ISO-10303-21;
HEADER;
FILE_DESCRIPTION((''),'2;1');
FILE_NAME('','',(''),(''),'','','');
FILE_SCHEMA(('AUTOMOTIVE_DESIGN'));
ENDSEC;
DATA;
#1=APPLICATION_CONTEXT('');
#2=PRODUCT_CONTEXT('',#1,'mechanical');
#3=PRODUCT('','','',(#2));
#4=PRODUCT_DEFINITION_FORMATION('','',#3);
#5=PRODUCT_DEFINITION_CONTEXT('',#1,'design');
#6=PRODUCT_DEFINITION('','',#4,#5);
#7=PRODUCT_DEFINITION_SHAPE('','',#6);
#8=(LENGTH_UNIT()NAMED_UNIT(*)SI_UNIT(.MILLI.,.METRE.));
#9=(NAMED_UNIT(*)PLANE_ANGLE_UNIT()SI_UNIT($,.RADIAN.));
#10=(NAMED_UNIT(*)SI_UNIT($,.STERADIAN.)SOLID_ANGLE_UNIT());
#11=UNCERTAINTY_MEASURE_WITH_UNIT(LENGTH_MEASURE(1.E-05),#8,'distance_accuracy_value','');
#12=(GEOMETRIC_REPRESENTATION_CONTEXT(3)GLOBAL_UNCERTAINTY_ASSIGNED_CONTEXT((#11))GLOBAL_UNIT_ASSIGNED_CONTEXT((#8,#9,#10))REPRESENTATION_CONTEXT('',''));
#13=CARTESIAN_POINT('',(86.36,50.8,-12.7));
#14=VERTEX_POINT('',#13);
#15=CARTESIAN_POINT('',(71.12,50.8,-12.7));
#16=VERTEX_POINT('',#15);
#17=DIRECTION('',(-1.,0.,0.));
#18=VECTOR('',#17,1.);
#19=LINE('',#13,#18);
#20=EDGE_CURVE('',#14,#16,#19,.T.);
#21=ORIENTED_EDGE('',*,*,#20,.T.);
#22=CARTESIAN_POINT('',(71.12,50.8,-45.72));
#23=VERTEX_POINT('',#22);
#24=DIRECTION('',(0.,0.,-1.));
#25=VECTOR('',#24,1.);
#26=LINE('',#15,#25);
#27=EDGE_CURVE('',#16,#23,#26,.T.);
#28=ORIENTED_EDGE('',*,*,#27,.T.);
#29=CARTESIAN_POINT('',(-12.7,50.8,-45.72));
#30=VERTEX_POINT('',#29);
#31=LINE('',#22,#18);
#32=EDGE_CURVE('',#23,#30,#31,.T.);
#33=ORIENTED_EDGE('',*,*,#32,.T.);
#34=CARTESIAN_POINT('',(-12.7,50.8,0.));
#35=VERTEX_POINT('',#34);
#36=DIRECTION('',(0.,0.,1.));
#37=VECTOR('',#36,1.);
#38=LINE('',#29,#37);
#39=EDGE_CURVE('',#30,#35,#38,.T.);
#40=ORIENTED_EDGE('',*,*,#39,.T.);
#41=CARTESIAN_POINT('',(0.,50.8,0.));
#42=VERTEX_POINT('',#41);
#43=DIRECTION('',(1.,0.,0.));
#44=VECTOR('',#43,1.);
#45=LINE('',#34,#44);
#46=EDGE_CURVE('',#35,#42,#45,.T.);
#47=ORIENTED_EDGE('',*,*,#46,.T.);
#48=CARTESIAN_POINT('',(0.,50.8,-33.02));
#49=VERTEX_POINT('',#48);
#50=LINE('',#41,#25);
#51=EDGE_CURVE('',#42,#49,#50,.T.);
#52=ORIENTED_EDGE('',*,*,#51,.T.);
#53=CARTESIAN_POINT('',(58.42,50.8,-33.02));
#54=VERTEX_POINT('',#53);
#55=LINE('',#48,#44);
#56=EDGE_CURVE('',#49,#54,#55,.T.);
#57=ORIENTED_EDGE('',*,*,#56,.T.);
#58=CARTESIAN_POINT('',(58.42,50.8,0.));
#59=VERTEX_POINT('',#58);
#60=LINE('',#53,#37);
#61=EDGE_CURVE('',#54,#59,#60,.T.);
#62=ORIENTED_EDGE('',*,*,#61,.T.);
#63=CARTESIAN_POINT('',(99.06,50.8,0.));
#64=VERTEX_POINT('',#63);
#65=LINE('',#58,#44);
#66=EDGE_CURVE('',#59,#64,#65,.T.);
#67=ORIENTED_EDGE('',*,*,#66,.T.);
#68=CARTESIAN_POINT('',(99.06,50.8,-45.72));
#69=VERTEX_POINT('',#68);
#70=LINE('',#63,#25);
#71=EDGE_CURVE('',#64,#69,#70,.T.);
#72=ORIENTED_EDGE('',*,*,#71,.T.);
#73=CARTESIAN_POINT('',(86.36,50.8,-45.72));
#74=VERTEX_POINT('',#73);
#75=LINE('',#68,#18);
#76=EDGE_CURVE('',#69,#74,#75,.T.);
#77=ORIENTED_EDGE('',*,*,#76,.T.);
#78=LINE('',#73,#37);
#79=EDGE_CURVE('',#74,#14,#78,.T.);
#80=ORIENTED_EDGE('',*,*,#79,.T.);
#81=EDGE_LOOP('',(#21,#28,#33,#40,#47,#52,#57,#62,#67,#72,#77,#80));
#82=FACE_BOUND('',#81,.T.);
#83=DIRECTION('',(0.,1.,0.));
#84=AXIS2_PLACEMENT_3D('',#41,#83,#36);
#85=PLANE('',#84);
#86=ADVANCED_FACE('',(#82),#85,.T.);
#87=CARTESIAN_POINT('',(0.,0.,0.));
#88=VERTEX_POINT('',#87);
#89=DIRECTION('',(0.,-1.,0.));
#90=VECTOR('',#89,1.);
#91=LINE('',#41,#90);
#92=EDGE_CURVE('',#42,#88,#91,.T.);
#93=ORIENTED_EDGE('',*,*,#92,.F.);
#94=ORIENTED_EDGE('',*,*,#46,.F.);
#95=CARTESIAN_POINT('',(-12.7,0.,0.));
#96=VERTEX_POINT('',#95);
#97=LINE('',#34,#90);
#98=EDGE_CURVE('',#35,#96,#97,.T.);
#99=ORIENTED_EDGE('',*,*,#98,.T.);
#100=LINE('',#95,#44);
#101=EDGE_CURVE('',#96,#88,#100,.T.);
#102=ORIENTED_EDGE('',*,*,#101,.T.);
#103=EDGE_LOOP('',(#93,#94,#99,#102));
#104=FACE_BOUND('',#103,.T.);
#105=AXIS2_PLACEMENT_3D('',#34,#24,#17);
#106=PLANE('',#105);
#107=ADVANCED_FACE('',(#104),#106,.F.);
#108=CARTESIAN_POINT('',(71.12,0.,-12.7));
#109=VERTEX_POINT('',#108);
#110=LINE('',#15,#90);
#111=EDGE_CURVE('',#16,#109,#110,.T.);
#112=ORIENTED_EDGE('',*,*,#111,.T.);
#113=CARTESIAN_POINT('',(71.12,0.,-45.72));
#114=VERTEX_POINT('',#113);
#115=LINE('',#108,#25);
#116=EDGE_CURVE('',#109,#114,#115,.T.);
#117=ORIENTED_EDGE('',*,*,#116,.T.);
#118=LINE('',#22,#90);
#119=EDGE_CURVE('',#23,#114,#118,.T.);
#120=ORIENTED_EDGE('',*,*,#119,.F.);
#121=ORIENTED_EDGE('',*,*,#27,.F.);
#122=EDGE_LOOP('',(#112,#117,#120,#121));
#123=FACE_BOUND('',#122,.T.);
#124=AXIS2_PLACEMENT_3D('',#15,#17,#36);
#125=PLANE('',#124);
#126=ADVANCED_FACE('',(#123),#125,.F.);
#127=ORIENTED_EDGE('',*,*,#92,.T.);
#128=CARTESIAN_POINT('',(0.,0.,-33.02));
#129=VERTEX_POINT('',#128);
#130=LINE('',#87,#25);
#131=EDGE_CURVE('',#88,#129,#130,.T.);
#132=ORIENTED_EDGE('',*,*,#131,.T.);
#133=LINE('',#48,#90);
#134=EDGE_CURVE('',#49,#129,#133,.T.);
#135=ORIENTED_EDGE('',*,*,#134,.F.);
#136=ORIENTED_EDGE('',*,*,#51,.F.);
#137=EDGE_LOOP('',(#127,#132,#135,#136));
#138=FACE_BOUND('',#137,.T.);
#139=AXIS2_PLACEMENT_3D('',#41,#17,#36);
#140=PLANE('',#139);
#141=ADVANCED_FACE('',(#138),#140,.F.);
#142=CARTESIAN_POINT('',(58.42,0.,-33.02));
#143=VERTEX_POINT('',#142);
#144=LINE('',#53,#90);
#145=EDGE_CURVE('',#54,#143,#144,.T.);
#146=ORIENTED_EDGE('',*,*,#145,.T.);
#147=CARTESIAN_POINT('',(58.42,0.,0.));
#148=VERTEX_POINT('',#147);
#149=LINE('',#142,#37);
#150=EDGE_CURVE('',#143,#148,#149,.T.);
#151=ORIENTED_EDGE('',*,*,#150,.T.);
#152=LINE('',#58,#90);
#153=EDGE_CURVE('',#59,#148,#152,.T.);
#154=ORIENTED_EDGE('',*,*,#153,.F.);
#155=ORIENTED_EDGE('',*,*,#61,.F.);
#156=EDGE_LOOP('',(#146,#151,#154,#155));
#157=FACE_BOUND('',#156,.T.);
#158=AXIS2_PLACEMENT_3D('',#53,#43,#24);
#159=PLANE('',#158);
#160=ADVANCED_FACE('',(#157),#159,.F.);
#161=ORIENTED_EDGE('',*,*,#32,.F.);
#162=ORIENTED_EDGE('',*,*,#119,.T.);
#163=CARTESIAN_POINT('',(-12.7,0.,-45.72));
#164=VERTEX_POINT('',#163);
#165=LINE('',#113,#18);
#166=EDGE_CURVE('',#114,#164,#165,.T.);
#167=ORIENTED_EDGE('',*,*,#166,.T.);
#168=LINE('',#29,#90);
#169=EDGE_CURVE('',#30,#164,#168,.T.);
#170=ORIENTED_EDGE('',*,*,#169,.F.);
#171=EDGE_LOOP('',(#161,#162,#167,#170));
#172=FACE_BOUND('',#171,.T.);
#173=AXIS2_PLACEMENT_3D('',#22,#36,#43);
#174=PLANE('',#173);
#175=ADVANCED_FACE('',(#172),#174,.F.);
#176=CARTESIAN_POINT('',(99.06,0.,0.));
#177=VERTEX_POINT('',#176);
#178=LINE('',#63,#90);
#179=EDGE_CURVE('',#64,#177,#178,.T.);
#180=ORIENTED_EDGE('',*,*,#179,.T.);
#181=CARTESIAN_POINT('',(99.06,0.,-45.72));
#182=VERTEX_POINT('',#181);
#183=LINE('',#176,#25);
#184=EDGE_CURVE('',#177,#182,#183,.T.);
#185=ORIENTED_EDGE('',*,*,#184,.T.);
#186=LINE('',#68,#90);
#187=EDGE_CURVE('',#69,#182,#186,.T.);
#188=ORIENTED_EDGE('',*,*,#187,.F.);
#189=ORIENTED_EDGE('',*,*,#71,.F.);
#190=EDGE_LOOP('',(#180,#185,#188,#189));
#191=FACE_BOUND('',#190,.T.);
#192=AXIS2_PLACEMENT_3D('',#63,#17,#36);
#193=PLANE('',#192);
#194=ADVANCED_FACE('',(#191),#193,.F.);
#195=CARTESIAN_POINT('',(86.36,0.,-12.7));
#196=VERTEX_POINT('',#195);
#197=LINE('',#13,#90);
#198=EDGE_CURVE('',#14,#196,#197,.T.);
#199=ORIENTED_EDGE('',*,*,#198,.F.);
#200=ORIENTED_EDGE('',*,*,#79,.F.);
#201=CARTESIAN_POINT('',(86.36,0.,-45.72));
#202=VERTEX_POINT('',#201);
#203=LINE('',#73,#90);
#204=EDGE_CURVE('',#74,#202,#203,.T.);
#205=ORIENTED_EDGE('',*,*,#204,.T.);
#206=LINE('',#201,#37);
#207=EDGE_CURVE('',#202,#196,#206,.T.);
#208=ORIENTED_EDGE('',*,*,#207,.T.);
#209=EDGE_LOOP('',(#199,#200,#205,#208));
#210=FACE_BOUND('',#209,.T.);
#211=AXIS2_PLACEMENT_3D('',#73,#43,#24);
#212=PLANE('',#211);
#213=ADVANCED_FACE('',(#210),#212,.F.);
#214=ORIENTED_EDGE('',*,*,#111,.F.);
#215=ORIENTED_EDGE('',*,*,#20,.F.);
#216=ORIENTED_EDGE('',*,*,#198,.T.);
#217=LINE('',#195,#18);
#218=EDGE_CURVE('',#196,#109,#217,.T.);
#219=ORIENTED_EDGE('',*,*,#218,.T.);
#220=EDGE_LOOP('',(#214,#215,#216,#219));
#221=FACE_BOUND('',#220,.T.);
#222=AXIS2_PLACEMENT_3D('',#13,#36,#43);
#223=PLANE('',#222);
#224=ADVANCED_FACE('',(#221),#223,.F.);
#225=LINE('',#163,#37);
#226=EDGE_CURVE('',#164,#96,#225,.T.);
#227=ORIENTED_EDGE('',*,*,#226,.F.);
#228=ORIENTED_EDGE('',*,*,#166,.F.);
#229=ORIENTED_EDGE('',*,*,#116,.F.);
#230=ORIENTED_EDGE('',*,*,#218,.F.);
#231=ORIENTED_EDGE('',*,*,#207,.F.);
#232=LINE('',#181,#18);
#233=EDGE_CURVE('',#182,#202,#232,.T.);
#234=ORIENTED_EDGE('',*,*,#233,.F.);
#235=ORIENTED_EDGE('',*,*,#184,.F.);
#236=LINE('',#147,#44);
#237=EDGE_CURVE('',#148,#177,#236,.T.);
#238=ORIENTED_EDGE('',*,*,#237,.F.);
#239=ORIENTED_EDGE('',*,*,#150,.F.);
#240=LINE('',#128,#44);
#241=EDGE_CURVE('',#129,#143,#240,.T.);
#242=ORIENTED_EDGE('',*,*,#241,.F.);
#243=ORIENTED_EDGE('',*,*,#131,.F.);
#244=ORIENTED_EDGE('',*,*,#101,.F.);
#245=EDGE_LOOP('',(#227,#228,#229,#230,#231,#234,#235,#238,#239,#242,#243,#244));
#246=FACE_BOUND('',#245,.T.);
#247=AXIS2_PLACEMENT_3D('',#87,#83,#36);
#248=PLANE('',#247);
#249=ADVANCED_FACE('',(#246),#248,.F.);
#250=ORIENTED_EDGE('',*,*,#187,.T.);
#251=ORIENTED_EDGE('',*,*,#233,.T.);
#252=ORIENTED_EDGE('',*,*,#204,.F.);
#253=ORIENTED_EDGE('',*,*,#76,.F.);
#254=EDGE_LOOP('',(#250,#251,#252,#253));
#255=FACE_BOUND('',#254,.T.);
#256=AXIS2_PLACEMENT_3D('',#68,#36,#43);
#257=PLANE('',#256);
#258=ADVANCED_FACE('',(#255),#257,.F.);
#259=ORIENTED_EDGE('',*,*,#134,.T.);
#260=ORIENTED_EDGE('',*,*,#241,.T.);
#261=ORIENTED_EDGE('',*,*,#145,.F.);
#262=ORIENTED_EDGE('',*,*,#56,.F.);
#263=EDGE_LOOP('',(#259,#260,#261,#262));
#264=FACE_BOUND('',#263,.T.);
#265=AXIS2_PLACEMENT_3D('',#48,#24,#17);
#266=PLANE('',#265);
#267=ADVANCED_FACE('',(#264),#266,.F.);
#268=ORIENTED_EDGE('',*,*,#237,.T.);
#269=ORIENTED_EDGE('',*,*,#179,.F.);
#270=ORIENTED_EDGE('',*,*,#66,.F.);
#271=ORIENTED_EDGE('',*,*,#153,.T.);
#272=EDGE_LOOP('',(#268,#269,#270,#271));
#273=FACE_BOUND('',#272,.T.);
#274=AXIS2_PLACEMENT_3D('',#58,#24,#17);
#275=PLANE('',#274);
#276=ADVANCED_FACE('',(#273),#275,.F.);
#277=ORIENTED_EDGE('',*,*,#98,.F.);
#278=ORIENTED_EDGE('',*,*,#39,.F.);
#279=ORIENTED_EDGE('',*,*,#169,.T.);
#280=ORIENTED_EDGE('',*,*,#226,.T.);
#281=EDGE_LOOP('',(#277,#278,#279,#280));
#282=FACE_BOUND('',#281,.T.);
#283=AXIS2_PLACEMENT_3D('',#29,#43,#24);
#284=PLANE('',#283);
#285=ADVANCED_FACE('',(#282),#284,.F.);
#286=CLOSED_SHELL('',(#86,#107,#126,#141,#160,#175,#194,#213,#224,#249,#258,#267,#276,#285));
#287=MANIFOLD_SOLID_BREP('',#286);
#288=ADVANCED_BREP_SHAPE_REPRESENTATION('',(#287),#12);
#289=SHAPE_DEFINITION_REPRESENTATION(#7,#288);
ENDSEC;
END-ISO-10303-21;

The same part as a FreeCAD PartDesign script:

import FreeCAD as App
import Part
import Sketcher
from FreeCAD import Vector
Q = App.Units.Quantity


def add_polygon(sketch, points):
    """Adds a closed chain of lines whose ends are joined by coincident constraints."""
    first, n = sketch.GeometryCount, len(points)
    for a, b in zip(points, points[1:] + points[:1]):
        sketch.addGeometry(Part.LineSegment(App.Vector(*a, 0), App.Vector(*b, 0)), False)
    for i in range(n):
        sketch.addConstraint(Sketcher.Constraint("Coincident", first + i, 2, first + (i + 1) % n, 1))

doc = App.newDocument("Part")
params = doc.addObject("Spreadsheet::Sheet", "Params")
for row, (alias, value) in enumerate([
    ("sketch1_width", "2.3 in"),
    ("sketch1_width2", "1.6 in"),
    ("sketch1_width3", "0.5 in"),
    ("sketch1_width4", "0.6 in"),
    ("sketch1_height", "1.3 in"),
    ("pad1_length", "2 in"),
], start=1):
    params.set(f"A{row}", alias)
    params.set(f"B{row}", "=" + value)
    params.setAlias(f"B{row}", alias)

body = doc.addObject("PartDesign::Body", "Body")

# Sketch on XZ plane
sketch1 = doc.addObject("Sketcher::SketchObject", "Sketch")
body.addObject(sketch1)
sketch1.AttachmentSupport = (doc.XZ_Plane, [""])
sketch1.MapMode = "FlatFace"
add_polygon(sketch1, [(0, 0), (0, -33), (58, -33), (58, 0), (99, 0), (99, -46), (86, -46), (86, -13), (71, -13), (71, -46), (-13, -46), (-13, 0)])  # lines 0-11
sketch1.addConstraint([
    Sketcher.Constraint("Vertical", 0),
    Sketcher.Constraint("Horizontal", 1),
    Sketcher.Constraint("Vertical", 2),
    Sketcher.Constraint("Horizontal", 3),
    Sketcher.Constraint("Vertical", 4),
    Sketcher.Constraint("Horizontal", 5),
    Sketcher.Constraint("Vertical", 6),
    Sketcher.Constraint("Horizontal", 7),
    Sketcher.Constraint("Vertical", 8),
    Sketcher.Constraint("Horizontal", 9),
    Sketcher.Constraint("Vertical", 10),
    Sketcher.Constraint("Horizontal", 11),
    Sketcher.Constraint("Coincident", 11, 2, -1, 1),
    Sketcher.Constraint("PointOnObject", 2, 2, -1),
    Sketcher.Constraint("Horizontal", 5, 2, 8, 2),
    Sketcher.Constraint("Equal", 5, 11),
    Sketcher.Constraint("Equal", 2, 6),
    Sketcher.Constraint("DistanceX", 1, 1, 1, 2, Q("2.3 in")),
    Sketcher.Constraint("DistanceX", 3, 1, 3, 2, Q("1.6 in")),
    Sketcher.Constraint("DistanceX", 5, 2, 5, 1, Q("0.5 in")),
    Sketcher.Constraint("DistanceX", 7, 2, 7, 1, Q("0.6 in")),
    Sketcher.Constraint("DistanceY", 0, 2, 0, 1, Q("1.3 in")),
    Sketcher.Constraint("DistanceY", 4, 2, 4, 1, Q("1.8 in")),
])
sketch1.setExpression("Constraints[29]", "Params.sketch1_width")
sketch1.setExpression("Constraints[30]", "Params.sketch1_width2")
sketch1.setExpression("Constraints[31]", "Params.sketch1_width3")
sketch1.setExpression("Constraints[32]", "Params.sketch1_width4")
sketch1.setExpression("Constraints[33]", "Params.sketch1_height")
pad1 = doc.addObject("PartDesign::Pad", "Pad")
body.addObject(pad1)
pad1.Profile = sketch1
pad1.setExpression("Length", "Params.pad1_length")
pad1.Reversed = True

doc.recompute()
